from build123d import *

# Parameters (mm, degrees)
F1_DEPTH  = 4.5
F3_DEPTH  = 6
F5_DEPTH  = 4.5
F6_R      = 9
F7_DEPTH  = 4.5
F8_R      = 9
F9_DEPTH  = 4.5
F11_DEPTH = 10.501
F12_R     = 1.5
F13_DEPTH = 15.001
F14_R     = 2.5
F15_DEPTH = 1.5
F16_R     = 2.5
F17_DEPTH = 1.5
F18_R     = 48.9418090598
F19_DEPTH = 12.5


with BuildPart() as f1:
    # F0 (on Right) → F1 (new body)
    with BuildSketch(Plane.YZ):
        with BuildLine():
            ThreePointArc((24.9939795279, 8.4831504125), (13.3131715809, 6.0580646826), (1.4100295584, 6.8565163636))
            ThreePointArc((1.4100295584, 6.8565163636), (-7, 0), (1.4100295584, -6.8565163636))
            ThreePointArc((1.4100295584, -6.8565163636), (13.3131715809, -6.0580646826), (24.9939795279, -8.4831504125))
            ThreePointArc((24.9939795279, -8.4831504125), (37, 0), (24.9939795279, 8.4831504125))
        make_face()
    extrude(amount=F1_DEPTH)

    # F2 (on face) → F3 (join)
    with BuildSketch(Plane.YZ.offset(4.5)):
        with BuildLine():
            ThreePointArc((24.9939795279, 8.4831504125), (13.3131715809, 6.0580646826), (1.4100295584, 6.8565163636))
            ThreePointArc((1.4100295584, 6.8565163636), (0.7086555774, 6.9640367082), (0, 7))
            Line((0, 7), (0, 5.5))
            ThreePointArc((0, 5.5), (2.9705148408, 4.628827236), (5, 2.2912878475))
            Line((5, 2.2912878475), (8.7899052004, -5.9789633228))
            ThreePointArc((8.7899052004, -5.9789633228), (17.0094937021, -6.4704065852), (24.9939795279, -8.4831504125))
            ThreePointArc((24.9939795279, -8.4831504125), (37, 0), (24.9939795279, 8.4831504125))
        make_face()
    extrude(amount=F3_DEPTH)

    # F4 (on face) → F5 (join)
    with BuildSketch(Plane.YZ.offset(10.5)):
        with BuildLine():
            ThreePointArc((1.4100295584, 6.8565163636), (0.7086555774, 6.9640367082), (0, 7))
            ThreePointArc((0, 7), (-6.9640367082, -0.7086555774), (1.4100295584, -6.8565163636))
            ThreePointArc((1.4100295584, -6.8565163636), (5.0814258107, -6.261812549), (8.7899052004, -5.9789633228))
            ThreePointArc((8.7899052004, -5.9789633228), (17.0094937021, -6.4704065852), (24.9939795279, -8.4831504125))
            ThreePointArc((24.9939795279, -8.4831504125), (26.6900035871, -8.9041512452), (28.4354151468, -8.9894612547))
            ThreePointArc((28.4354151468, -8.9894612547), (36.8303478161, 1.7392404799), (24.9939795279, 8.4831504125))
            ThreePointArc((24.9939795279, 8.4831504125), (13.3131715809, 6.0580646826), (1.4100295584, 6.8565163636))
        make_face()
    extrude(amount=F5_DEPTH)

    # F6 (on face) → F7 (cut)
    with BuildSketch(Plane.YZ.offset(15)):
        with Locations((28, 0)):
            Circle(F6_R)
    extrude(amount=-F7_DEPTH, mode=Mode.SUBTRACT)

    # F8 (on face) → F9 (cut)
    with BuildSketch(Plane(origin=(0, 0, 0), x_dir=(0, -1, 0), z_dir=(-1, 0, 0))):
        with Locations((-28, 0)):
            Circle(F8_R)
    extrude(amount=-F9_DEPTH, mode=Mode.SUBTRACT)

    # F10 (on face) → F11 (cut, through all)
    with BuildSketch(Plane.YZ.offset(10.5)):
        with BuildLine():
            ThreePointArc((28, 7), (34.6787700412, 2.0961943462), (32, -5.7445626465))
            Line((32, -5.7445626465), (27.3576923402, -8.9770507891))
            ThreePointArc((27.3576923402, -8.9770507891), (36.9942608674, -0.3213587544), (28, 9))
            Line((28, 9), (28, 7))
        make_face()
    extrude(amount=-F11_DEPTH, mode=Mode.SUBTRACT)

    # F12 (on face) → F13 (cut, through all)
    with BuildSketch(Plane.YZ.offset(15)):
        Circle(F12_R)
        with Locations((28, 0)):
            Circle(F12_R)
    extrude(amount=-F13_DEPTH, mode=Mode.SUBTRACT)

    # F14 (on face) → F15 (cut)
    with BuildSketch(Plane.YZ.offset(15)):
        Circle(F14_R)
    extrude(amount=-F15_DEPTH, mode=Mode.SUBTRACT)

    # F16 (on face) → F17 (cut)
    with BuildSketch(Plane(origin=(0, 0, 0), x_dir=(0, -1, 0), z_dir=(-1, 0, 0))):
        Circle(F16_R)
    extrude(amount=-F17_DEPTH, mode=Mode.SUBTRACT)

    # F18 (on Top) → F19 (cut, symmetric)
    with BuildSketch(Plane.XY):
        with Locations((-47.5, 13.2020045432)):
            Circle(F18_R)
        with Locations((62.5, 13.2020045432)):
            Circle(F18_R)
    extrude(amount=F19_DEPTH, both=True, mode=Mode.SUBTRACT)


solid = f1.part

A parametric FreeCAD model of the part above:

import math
import FreeCAD as App
import Part
import Sketcher
from FreeCAD import Vector

doc = App.newDocument("Part")
body = doc.addObject("PartDesign::Body", "Body")

sketch1 = body.newObject("Sketcher::SketchObject", "Sketch")
sketch1.AttachmentSupport = (doc.getObject("YZ_Plane"), [""])
sketch1.MapMode = "FlatFace"
sketch1.addGeometry([
    Part.ArcOfCircle(Part.Circle(Vector(10.282405, 50, 0), Vector(0, 0, 1), 44.04633), math.radians(-101.620757), math.radians(-70.488122)),
    Part.ArcOfCircle(Part.Circle(Vector(0, 0, 0), Vector(0, 0, 1), 7), math.radians(78.379243), math.radians(281.620757)),
    Part.ArcOfCircle(Part.Circle(Vector(10.282405, -50, 0), Vector(0, 0, 1), 44.04633), math.radians(70.488122), math.radians(101.620757)),
    Part.ArcOfCircle(Part.Circle(Vector(28, 0, 0), Vector(0, 0, 1), 9), math.radians(-109.511878), math.radians(109.511878)),
], False)
sketch1.addConstraint([
    Sketcher.Constraint("Tangent", 0, 1, 1, 1),
    Sketcher.Constraint("Tangent", 1, 2, 2, 2),
    Sketcher.Constraint("Tangent", 2, 1, 3, 1),
    Sketcher.Constraint("Tangent", 3, 2, 0, 2),
    Sketcher.Constraint("Coincident", 1, 3, -1, 1),
    Sketcher.Constraint("Equal", 0, 2),
    Sketcher.Constraint("PointOnObject", 3, 3, -1),
    Sketcher.Constraint("Radius", 1, 7.0),
    Sketcher.Constraint("Radius", 3, 9.0),
    Sketcher.Constraint("DistanceY", -1, 1, 0, 3, 50.0),
    Sketcher.Constraint("DistanceX", -1, 1, 3, 3, 28.0),
])
pad1 = body.newObject("PartDesign::Pad", "Pad")
pad1.Profile = sketch1
pad1.Length = 4.5

sketch2 = body.newObject("Sketcher::SketchObject", "Sketch001")
sketch2.AttachmentSupport = (doc.getObject("YZ_Plane"), [""])
sketch2.MapMode = "FlatFace"
sketch2.AttachmentOffset = App.Placement(Vector(0, 0, 4.5), App.Rotation())
sketch2.addGeometry([
    Part.ArcOfCircle(Part.Circle(Vector(10.282405, 50, 0), Vector(0, 0, 1), 44.04633), math.radians(-101.620757), math.radians(-70.488122)),
    Part.ArcOfCircle(Part.Circle(Vector(0, 0, 0), Vector(0, 0, 1), 7), math.radians(78.379243), math.radians(90)),
    Part.LineSegment(Vector(0, 7, 0), Vector(0, 5.5, 0)),
    Part.ArcOfCircle(Part.Circle(Vector(0, 0, 0), Vector(0, 0, 1), 5.5), math.radians(24.619977), math.radians(90)),
    Part.LineSegment(Vector(5, 2.291288, 0), Vector(8.789905, -5.978963, 0)),
    Part.ArcOfCircle(Part.Circle(Vector(10.282405, -50, 0), Vector(0, 0, 1), 44.04633), math.radians(70.488122), math.radians(91.941826)),
    Part.ArcOfCircle(Part.Circle(Vector(28, 0, 0), Vector(0, 0, 1), 9), math.radians(-109.511878), math.radians(109.511878)),
], False)
sketch2.addConstraint([
    Sketcher.Constraint("Tangent", 0, 1, 1, 1),
    Sketcher.Constraint("Coincident", 1, 2, 2, 1),
    Sketcher.Constraint("Coincident", 2, 2, 3, 2),
    Sketcher.Constraint("Tangent", 3, 1, 4, 1),
    Sketcher.Constraint("Coincident", 4, 2, 5, 2),
    Sketcher.Constraint("Tangent", 5, 1, 6, 1),
    Sketcher.Constraint("Tangent", 6, 2, 0, 2),
    Sketcher.Constraint("Vertical", 2),
    Sketcher.Constraint("Coincident", 1, 3, -1, 1),
    Sketcher.Constraint("Coincident", 3, 3, -1, 1),
    Sketcher.Constraint("Equal", 0, 5),
    Sketcher.Constraint("Symmetric", 0, 3, 5, 3, -1),
    Sketcher.Constraint("PointOnObject", 1, 2, -2),
    Sketcher.Constraint("Radius", 1, 7.0),
    Sketcher.Constraint("Radius", 6, 9.0),
    Sketcher.Constraint("Radius", 3, 5.5),
    Sketcher.Constraint("DistanceY", -1, 1, 0, 3, 50.0),
    Sketcher.Constraint("DistanceX", -1, 1, 6, 3, 28.0),
    Sketcher.Constraint("DistanceX", -1, 1, 3, 1, 5.0),
])
pad2 = body.newObject("PartDesign::Pad", "Pad001")
pad2.Profile = sketch2
pad2.Length = 6

sketch3 = body.newObject("Sketcher::SketchObject", "Sketch002")
sketch3.AttachmentSupport = (doc.getObject("YZ_Plane"), [""])
sketch3.MapMode = "FlatFace"
sketch3.AttachmentOffset = App.Placement(Vector(0, 0, 10.5), App.Rotation())
sketch3.addGeometry([
    Part.ArcOfCircle(Part.Circle(Vector(0, 0, 0), Vector(0, 0, 1), 7), math.radians(78.379243), math.radians(90)),
    Part.ArcOfCircle(Part.Circle(Vector(0, 0, 0), Vector(0, 0, 1), 7), math.radians(90), math.radians(281.620757)),
    Part.ArcOfCircle(Part.Circle(Vector(10.282405, -50, 0), Vector(0, 0, 1), 44.04633), math.radians(91.941826), math.radians(101.620757)),
    Part.ArcOfCircle(Part.Circle(Vector(10.282405, -50, 0), Vector(0, 0, 1), 44.04633), math.radians(70.488122), math.radians(91.941826)),
    Part.ArcOfCircle(Part.Circle(Vector(28, 0, 0), Vector(0, 0, 1), 9), math.radians(-109.511878), math.radians(-87.226979)),
    Part.ArcOfCircle(Part.Circle(Vector(28, 0, 0), Vector(0, 0, 1), 9), math.radians(-87.226979), math.radians(109.511878)),
    Part.ArcOfCircle(Part.Circle(Vector(10.282405, 50, 0), Vector(0, 0, 1), 44.04633), math.radians(-101.620757), math.radians(-70.488122)),
], False)
sketch3.addConstraint([
    Sketcher.Constraint("Tangent", 0, 2, 1, 1),
    Sketcher.Constraint("Tangent", 1, 2, 2, 2),
    Sketcher.Constraint("Tangent", 2, 1, 3, 2),
    Sketcher.Constraint("Tangent", 3, 1, 4, 1),
    Sketcher.Constraint("Tangent", 4, 2, 5, 1),
    Sketcher.Constraint("Tangent", 5, 2, 6, 2),
    Sketcher.Constraint("Tangent", 6, 1, 0, 1),
    Sketcher.Constraint("Coincident", 0, 3, -1, 1),
    Sketcher.Constraint("Equal", 0, 1),
    Sketcher.Constraint("Equal", 2, 3),
    Sketcher.Constraint("Equal", 4, 5),
    Sketcher.Constraint("Equal", 3, 6),
    Sketcher.Constraint("PointOnObject", 4, 3, -1),
    Sketcher.Constraint("PointOnObject", 0, 2, -2),
    Sketcher.Constraint("Radius", 0, 7.0),
    Sketcher.Constraint("Radius", 4, 9.0),
    Sketcher.Constraint("DistanceY", 2, 3, -1, 1, 50.0),
    Sketcher.Constraint("DistanceX", -1, 1, 4, 3, 28.0),
    Sketcher.Constraint("DistanceY", 4, 2, -1, 1, 8.989461),
    Sketcher.Constraint("DistanceX", 2, 1, 4, 2, 19.64551),
])
pad3 = body.newObject("PartDesign::Pad", "Pad002")
pad3.Profile = sketch3
pad3.Length = 4.5

sketch4 = body.newObject("Sketcher::SketchObject", "Sketch003")
sketch4.AttachmentSupport = (doc.getObject("YZ_Plane"), [""])
sketch4.MapMode = "FlatFace"
sketch4.AttachmentOffset = App.Placement(Vector(0, 0, 15), App.Rotation())
sketch4.addGeometry(Part.Circle(Vector(28, 0, 0), Vector(0, 0, 1), 9), False)
sketch4.addConstraint([
    Sketcher.Constraint("PointOnObject", 0, 3, -1),
    Sketcher.Constraint("Diameter", 0, 18.0),
    Sketcher.Constraint("DistanceX", -1, 1, 0, 3, 28.0),
])
pocket1 = body.newObject("PartDesign::Pocket", "Pocket")
pocket1.Profile = sketch4
pocket1.Length = 4.5

sketch5 = body.newObject("Sketcher::SketchObject", "Sketch004")
sketch5.AttachmentSupport = (doc.getObject("YZ_Plane"), [""])
sketch5.MapMode = "FlatFace"
sketch5.addGeometry(Part.Circle(Vector(28, 0, 0), Vector(0, 0, 1), 9), False)
sketch5.addConstraint([
    Sketcher.Constraint("PointOnObject", 0, 3, -1),
    Sketcher.Constraint("Diameter", 0, 18.0),
    Sketcher.Constraint("DistanceX", -1, 1, 0, 3, 28.0),
])
pocket2 = body.newObject("PartDesign::Pocket", "Pocket001")
pocket2.Profile = sketch5
pocket2.Length = 4.5
pocket2.Reversed = True

sketch6 = body.newObject("Sketcher::SketchObject", "Sketch005")
sketch6.AttachmentSupport = (doc.getObject("YZ_Plane"), [""])
sketch6.MapMode = "FlatFace"
sketch6.AttachmentOffset = App.Placement(Vector(0, 0, 10.5), App.Rotation())
sketch6.addGeometry([
    Part.ArcOfCircle(Part.Circle(Vector(28, 0, 0), Vector(0, 0, 1), 7), math.radians(-55.150095), math.radians(90)),
    Part.LineSegment(Vector(32, -5.744563, 0), Vector(27.357692, -8.977051, 0)),
    Part.ArcOfCircle(Part.Circle(Vector(28, 0, 0), Vector(0, 0, 1), 9), math.radians(-94.092537), math.radians(90)),
    Part.LineSegment(Vector(28, 9, 0), Vector(28, 7, 0)),
], False)
sketch6.addConstraint([
    Sketcher.Constraint("Tangent", 0, 1, 1, 1),
    Sketcher.Constraint("Coincident", 1, 2, 2, 1),
    Sketcher.Constraint("Coincident", 2, 2, 3, 1),
    Sketcher.Constraint("Coincident", 3, 2, 0, 2),
    Sketcher.Constraint("Vertical", 3),
    Sketcher.Constraint("Coincident", 2, 3, 0, 3),
    Sketcher.Constraint("PointOnObject", 0, 3, -1),
    Sketcher.Constraint("Vertical", 0, 3, 2, 2),
    Sketcher.Constraint("Radius", 0, 7.0),
    Sketcher.Constraint("Radius", 2, 9.0),
    Sketcher.Constraint("DistanceX", -1, 1, 0, 3, 28.0),
    Sketcher.Constraint("DistanceX", -1, 1, 0, 1, 32.0),
])
pocket3 = body.newObject("PartDesign::Pocket", "Pocket002")
pocket3.Profile = sketch6
pocket3.Type = "ThroughAll"

sketch7 = body.newObject("Sketcher::SketchObject", "Sketch006")
sketch7.AttachmentSupport = (doc.getObject("YZ_Plane"), [""])
sketch7.MapMode = "FlatFace"
sketch7.AttachmentOffset = App.Placement(Vector(0, 0, 15), App.Rotation())
sketch7.addGeometry([
    Part.Circle(Vector(0, 0, 0), Vector(0, 0, 1), 1.5),
    Part.Circle(Vector(28, 0, 0), Vector(0, 0, 1), 1.5),
], False)
sketch7.addConstraint([
    Sketcher.Constraint("Coincident", 0, 3, -1, 1),
    Sketcher.Constraint("Equal", 0, 1),
    Sketcher.Constraint("PointOnObject", 1, 3, -1),
    Sketcher.Constraint("Diameter", 0, 3.0),
    Sketcher.Constraint("DistanceX", -1, 1, 1, 3, 28.0),
])
pocket4 = body.newObject("PartDesign::Pocket", "Pocket003")
pocket4.Profile = sketch7
pocket4.Type = "ThroughAll"

sketch8 = body.newObject("Sketcher::SketchObject", "Sketch007")
sketch8.AttachmentSupport = (doc.getObject("YZ_Plane"), [""])
sketch8.MapMode = "FlatFace"
sketch8.AttachmentOffset = App.Placement(Vector(0, 0, 15), App.Rotation())
sketch8.addGeometry(Part.Circle(Vector(0, 0, 0), Vector(0, 0, 1), 2.5), False)
sketch8.addConstraint([
    Sketcher.Constraint("Coincident", 0, 3, -1, 1),
    Sketcher.Constraint("Diameter", 0, 5.0),
])
pocket5 = body.newObject("PartDesign::Pocket", "Pocket004")
pocket5.Profile = sketch8
pocket5.Length = 1.5

sketch9 = body.newObject("Sketcher::SketchObject", "Sketch008")
sketch9.AttachmentSupport = (doc.getObject("YZ_Plane"), [""])
sketch9.MapMode = "FlatFace"
sketch9.addGeometry(Part.Circle(Vector(0, 0, 0), Vector(0, 0, 1), 2.5), False)
sketch9.addConstraint([
    Sketcher.Constraint("Coincident", 0, 3, -1, 1),
    Sketcher.Constraint("Diameter", 0, 5.0),
])
pocket6 = body.newObject("PartDesign::Pocket", "Pocket005")
pocket6.Profile = sketch9
pocket6.Length = 1.5
pocket6.Reversed = True

sketch10 = body.newObject("Sketcher::SketchObject", "Sketch009")
sketch10.AttachmentSupport = (doc.getObject("XY_Plane"), [""])
sketch10.MapMode = "FlatFace"
sketch10.addGeometry([
    Part.Circle(Vector(-47.5, 13.202005, 0), Vector(0, 0, 1), 48.941809),
    Part.Circle(Vector(62.5, 13.202005, 0), Vector(0, 0, 1), 48.941809),
], False)
sketch10.addConstraint([
    Sketcher.Constraint("Equal", 0, 1),
    Sketcher.Constraint("Horizontal", 0, 3, 1, 3),
    Sketcher.Constraint("DistanceX", 0, 3, 1, 3, 110.0),
    Sketcher.Constraint("DistanceX", 0, 3, -1, 1, 47.5),
    Sketcher.Constraint("Diameter", 0, 97.883618),
    Sketcher.Constraint("DistanceY", -1, 1, 0, 3, 13.202005),
])
pocket7 = body.newObject("PartDesign::Pocket", "Pocket006")
pocket7.Profile = sketch10
pocket7.Length = 25
pocket7.Midplane = True

doc.recompute()
